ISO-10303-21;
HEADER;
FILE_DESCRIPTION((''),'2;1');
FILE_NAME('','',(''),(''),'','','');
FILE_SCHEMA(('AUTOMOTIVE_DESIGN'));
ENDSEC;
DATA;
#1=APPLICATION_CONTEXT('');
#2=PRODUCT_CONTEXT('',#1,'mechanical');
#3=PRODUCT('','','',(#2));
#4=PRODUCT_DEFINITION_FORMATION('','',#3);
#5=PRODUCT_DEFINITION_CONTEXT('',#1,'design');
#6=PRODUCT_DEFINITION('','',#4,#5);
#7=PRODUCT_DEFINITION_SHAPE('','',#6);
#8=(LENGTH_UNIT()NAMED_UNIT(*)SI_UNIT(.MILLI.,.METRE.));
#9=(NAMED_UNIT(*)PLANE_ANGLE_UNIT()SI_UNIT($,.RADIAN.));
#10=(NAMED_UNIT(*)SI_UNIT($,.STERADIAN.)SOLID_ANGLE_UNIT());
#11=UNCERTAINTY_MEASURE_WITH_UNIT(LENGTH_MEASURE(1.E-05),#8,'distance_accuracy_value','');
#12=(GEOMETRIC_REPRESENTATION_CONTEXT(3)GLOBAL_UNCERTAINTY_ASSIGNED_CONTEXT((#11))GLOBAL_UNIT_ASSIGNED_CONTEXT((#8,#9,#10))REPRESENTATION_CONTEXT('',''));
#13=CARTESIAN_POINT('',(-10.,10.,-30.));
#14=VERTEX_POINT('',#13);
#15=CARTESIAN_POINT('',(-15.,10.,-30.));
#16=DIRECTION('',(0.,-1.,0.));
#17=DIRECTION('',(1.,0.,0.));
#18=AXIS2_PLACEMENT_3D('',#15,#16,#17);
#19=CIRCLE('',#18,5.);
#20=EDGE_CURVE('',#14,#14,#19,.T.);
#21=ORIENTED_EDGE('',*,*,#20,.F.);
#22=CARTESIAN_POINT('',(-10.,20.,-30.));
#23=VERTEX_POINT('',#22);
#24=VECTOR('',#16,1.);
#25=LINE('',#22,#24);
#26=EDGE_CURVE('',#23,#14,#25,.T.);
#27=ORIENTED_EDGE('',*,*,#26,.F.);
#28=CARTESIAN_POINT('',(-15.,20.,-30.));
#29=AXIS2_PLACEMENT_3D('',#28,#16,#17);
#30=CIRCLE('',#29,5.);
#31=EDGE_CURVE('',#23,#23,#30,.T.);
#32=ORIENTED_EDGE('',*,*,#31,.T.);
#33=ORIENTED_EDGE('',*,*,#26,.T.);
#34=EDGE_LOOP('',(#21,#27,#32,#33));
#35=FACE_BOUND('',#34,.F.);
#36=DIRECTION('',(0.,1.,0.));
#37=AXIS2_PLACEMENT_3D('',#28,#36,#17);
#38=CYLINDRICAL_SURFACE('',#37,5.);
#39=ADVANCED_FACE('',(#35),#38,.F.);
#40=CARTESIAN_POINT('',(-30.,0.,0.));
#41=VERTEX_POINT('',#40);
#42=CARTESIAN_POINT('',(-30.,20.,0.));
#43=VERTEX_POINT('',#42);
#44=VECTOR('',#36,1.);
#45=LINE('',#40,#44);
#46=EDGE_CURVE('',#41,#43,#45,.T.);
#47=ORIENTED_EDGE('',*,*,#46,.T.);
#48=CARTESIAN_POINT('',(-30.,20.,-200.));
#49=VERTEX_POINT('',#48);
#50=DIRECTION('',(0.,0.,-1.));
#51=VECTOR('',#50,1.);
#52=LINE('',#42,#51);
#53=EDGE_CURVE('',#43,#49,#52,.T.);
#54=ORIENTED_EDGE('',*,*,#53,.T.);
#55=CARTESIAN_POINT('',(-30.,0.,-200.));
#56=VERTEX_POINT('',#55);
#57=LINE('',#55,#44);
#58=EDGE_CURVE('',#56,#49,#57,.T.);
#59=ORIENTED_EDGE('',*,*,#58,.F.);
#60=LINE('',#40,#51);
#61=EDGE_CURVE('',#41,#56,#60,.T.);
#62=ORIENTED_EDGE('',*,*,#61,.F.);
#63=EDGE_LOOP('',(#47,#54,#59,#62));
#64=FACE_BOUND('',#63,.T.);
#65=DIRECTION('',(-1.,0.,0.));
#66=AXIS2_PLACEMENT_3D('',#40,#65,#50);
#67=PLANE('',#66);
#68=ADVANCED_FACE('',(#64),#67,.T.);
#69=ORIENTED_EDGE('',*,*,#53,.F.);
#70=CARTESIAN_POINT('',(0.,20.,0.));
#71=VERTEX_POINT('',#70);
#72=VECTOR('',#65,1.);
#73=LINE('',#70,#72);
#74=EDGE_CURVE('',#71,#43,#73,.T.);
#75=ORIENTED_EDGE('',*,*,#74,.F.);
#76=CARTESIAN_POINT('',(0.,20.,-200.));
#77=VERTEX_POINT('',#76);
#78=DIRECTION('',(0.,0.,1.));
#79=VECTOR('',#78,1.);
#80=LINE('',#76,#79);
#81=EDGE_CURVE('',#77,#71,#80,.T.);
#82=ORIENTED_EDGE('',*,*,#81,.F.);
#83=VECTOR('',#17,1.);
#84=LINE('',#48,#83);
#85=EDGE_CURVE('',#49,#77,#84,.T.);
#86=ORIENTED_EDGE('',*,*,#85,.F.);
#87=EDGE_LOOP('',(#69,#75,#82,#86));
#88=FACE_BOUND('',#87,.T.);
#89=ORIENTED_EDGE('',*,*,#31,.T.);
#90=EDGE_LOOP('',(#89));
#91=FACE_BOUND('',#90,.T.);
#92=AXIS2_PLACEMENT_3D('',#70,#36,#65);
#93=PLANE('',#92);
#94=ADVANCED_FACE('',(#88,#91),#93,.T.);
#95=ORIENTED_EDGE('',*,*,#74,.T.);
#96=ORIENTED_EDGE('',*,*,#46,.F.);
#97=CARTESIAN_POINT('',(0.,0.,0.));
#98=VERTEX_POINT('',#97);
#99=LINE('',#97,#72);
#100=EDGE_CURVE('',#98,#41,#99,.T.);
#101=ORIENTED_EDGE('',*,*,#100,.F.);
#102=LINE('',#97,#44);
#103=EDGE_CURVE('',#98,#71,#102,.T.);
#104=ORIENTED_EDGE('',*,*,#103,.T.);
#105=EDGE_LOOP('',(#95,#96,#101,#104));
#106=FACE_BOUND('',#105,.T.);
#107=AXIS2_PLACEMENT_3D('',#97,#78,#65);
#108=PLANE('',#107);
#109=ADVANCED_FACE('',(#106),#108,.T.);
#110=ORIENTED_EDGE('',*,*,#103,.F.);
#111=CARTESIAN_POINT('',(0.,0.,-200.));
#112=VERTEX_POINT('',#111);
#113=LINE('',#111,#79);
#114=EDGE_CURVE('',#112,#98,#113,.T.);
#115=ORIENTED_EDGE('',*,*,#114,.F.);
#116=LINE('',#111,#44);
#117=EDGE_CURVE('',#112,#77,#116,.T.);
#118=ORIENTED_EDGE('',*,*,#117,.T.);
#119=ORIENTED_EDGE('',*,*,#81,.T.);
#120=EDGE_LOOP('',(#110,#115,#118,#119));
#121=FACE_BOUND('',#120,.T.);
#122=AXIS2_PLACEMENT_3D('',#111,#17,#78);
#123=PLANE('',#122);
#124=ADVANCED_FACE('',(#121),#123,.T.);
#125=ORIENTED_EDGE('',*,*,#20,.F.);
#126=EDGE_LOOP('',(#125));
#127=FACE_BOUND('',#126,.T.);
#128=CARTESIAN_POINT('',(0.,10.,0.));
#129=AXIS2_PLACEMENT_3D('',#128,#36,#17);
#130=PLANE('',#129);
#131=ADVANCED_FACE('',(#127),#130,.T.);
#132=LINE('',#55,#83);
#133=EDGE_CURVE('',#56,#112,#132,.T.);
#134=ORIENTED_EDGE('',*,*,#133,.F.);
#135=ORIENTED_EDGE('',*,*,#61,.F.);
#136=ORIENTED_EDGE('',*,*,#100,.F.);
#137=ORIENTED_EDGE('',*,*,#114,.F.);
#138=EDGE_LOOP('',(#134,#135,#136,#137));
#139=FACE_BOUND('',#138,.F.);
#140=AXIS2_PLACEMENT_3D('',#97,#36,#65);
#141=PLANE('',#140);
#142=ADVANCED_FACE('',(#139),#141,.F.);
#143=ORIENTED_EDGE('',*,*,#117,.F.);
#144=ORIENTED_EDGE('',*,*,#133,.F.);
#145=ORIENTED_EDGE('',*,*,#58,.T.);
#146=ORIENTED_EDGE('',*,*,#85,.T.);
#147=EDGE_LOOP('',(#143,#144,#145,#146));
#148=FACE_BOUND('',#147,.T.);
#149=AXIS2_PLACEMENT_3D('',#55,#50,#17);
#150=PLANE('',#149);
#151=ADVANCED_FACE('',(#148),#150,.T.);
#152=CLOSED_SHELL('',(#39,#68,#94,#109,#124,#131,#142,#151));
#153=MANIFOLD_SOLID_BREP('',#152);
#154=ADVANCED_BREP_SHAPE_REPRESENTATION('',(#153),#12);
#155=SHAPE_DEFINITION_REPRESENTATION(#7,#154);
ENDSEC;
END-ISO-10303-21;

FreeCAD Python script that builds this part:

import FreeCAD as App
import Part
import Sketcher
from FreeCAD import Vector
Q = App.Units.Quantity


def add_polygon(sketch, points):
    """Adds a closed chain of lines whose ends are joined by coincident constraints."""
    first, n = sketch.GeometryCount, len(points)
    for a, b in zip(points, points[1:] + points[:1]):
        sketch.addGeometry(Part.LineSegment(App.Vector(*a, 0), App.Vector(*b, 0)), False)
    for i in range(n):
        sketch.addConstraint(Sketcher.Constraint("Coincident", first + i, 2, first + (i + 1) % n, 1))

doc = App.newDocument("Part")
body = doc.addObject("PartDesign::Body", "Body")

# Sketch on XZ plane
sketch1 = body.newObject("Sketcher::SketchObject", "Sketch")
sketch1.AttachmentSupport = (doc.getObject("XZ_Plane"), [""])
sketch1.MapMode = "FlatFace"
add_polygon(sketch1, [(-30, 0), (0, 0), (0, -200), (-30, -200)])  # lines 0-3
sketch1.addConstraint([
    Sketcher.Constraint("Horizontal", 0),
    Sketcher.Constraint("Vertical", 1),
    Sketcher.Constraint("Horizontal", 2),
    Sketcher.Constraint("Vertical", 3),
    Sketcher.Constraint("Coincident", 0, 2, -1, 1),
    Sketcher.Constraint("DistanceX", 0, 1, 0, 2, Q("30 mm")),
    Sketcher.Constraint("DistanceY", 1, 2, 1, 1, Q("200 mm")),
])
pad1 = body.newObject("PartDesign::Pad", "Pad")
pad1.Profile = sketch1
pad1.Length = 20
pad1.Reversed = True

# Sketch on XZ plane
sketch2 = body.newObject("Sketcher::SketchObject", "Sketch001")
sketch2.AttachmentSupport = (doc.getObject("XZ_Plane"), [""])
sketch2.MapMode = "FlatFace"
sketch2.AttachmentOffset = App.Placement(Vector(0, 0, -20), App.Rotation())
sketch2.addGeometry(Part.Circle(Vector(-15, -30, 0), Vector(0, 0, 1), 5), False)
sketch2.addConstraint([
    Sketcher.Constraint("Diameter", 0, Q("10 mm")),
    Sketcher.Constraint("DistanceY", 0, 3, -1, 1, Q("30 mm")),
    Sketcher.Constraint("DistanceX", 0, 3, -1, 1, Q("15 mm")),
])
pocket1 = body.newObject("PartDesign::Pocket", "Pocket")
pocket1.Profile = sketch2
pocket1.Length = 10
pocket1.Reversed = True

doc.recompute()
